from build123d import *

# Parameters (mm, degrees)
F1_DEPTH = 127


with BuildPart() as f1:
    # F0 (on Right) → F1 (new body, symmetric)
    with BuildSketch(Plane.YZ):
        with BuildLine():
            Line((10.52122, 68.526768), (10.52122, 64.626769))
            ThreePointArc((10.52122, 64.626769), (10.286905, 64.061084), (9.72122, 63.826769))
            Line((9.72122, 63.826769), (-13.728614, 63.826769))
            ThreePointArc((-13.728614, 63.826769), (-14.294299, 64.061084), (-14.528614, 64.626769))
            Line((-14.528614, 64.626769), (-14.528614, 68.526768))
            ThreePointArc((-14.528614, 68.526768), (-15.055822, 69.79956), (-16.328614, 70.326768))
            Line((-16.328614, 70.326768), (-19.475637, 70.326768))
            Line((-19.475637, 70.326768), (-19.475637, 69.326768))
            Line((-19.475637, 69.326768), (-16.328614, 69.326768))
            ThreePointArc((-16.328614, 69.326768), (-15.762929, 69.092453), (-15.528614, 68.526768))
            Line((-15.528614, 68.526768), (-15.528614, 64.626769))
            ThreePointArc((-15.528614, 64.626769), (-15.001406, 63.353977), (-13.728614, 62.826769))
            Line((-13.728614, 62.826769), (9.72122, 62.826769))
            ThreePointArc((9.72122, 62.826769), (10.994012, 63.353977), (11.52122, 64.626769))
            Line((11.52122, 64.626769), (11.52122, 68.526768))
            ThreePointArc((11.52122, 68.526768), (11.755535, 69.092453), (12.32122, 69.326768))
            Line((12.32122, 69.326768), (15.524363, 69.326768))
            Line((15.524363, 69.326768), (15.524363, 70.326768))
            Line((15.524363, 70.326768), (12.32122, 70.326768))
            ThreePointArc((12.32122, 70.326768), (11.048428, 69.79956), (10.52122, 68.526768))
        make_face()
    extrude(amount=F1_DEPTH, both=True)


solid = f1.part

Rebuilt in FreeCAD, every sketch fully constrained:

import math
import FreeCAD as App
import Part
import Sketcher
from FreeCAD import Vector
Q = App.Units.Quantity

doc = App.newDocument("Part")
params = doc.addObject("Spreadsheet::Sheet", "Params")
for row, (alias, value) in enumerate([
    ("sketch1_radius", "0.800001 mm"),
    ("sketch1_radius2", "1.800001 mm"),
    ("sketch1_height", "3.899999 mm"),
    ("pad1_length", "254 mm"),
], start=1):
    params.set(f"A{row}", alias)
    params.set(f"B{row}", "=" + value)
    params.setAlias(f"B{row}", alias)

body = doc.addObject("PartDesign::Body", "Body")

sketch1 = body.newObject("Sketcher::SketchObject", "Sketch")
sketch1.AttachmentSupport = (doc.getObject("YZ_Plane"), [""])
sketch1.MapMode = "FlatFace"
sketch1.addGeometry([
    Part.LineSegment(Vector(10.5, 68.5, 0), Vector(10.5, 64.6, 0)),
    Part.ArcOfCircle(Part.Circle(Vector(9.7, 64.6, 0), Vector(0, 0, 1), 0.8), math.radians(-90), math.radians(0)),
    Part.LineSegment(Vector(9.7, 63.8, 0), Vector(-13.7, 63.8, 0)),
    Part.ArcOfCircle(Part.Circle(Vector(-13.7, 64.6, 0), Vector(0, 0, 1), 0.8), math.radians(-180), math.radians(-90)),
    Part.LineSegment(Vector(-14.5, 64.6, 0), Vector(-14.5, 68.5, 0)),
    Part.ArcOfCircle(Part.Circle(Vector(-16.3, 68.5, 0), Vector(0, 0, 1), 1.8), math.radians(0), math.radians(90)),
    Part.LineSegment(Vector(-16.3, 70.3, 0), Vector(-19.5, 70.3, 0)),
    Part.LineSegment(Vector(-19.5, 70.3, 0), Vector(-19.5, 69.3, 0)),
    Part.LineSegment(Vector(-19.5, 69.3, 0), Vector(-16.3, 69.3, 0)),
    Part.ArcOfCircle(Part.Circle(Vector(-16.3, 68.5, 0), Vector(0, 0, 1), 0.8), math.radians(0), math.radians(90)),
    Part.LineSegment(Vector(-15.5, 68.5, 0), Vector(-15.5, 64.6, 0)),
    Part.ArcOfCircle(Part.Circle(Vector(-13.7, 64.6, 0), Vector(0, 0, 1), 1.8), math.radians(-180), math.radians(-90)),
    Part.LineSegment(Vector(-13.7, 62.8, 0), Vector(9.7, 62.8, 0)),
    Part.ArcOfCircle(Part.Circle(Vector(9.7, 64.6, 0), Vector(0, 0, 1), 1.8), math.radians(-90), math.radians(0)),
    Part.LineSegment(Vector(11.5, 64.6, 0), Vector(11.5, 68.5, 0)),
    Part.ArcOfCircle(Part.Circle(Vector(12.3, 68.5, 0), Vector(0, 0, 1), 0.8), math.radians(90), math.radians(180)),
    Part.LineSegment(Vector(12.3, 69.3, 0), Vector(15.5, 69.3, 0)),
    Part.LineSegment(Vector(15.5, 69.3, 0), Vector(15.5, 70.3, 0)),
    Part.LineSegment(Vector(15.5, 70.3, 0), Vector(12.3, 70.3, 0)),
    Part.ArcOfCircle(Part.Circle(Vector(12.3, 68.5, 0), Vector(0, 0, 1), 1.8), math.radians(90), math.radians(180)),
], False)
sketch1.addConstraint([
    Sketcher.Constraint("Tangent", 0, 2, 1, 2),
    Sketcher.Constraint("Tangent", 1, 1, 2, 1),
    Sketcher.Constraint("Tangent", 2, 2, 3, 2),
    Sketcher.Constraint("Tangent", 3, 1, 4, 1),
    Sketcher.Constraint("Tangent", 4, 2, 5, 1),
    Sketcher.Constraint("Tangent", 5, 2, 6, 1),
    Sketcher.Constraint("Coincident", 6, 2, 7, 1),
    Sketcher.Constraint("Coincident", 7, 2, 8, 1),
    Sketcher.Constraint("Tangent", 8, 2, 9, 2),
    Sketcher.Constraint("Tangent", 9, 1, 10, 1),
    Sketcher.Constraint("Tangent", 10, 2, 11, 1),
    Sketcher.Constraint("Tangent", 11, 2, 12, 1),
    Sketcher.Constraint("Tangent", 12, 2, 13, 1),
    Sketcher.Constraint("Tangent", 13, 2, 14, 1),
    Sketcher.Constraint("Tangent", 14, 2, 15, 2),
    Sketcher.Constraint("Tangent", 15, 1, 16, 1),
    Sketcher.Constraint("Coincident", 16, 2, 17, 1),
    Sketcher.Constraint("Coincident", 17, 2, 18, 1),
    Sketcher.Constraint("Tangent", 18, 2, 19, 1),
    Sketcher.Constraint("Tangent", 19, 2, 0, 1),
    Sketcher.Constraint("Vertical", 0),
    Sketcher.Constraint("Horizontal", 2),
    Sketcher.Constraint("Vertical", 4),
    Sketcher.Constraint("Horizontal", 6),
    Sketcher.Constraint("Vertical", 7),
    Sketcher.Constraint("Horizontal", 8),
    Sketcher.Constraint("Vertical", 10),
    Sketcher.Constraint("Horizontal", 12),
    Sketcher.Constraint("Vertical", 14),
    Sketcher.Constraint("Horizontal", 16),
    Sketcher.Constraint("Vertical", 17),
    Sketcher.Constraint("Horizontal", 18),
    Sketcher.Constraint("Coincident", 9, 3, 5, 3),
    Sketcher.Constraint("Coincident", 11, 3, 3, 3),
    Sketcher.Constraint("Coincident", 13, 3, 1, 3),
    Sketcher.Constraint("Coincident", 19, 3, 15, 3),
    Sketcher.Constraint("Equal", 1, 3),
    Sketcher.Constraint("Equal", 3, 9),
    Sketcher.Constraint("Equal", 9, 15),
    Sketcher.Constraint("Horizontal", 9, 3, 15, 3),
    Sketcher.Constraint("Radius", 1, Q("0.800001 mm")),
    Sketcher.Constraint("Radius", 5, Q("1.800001 mm")),
    Sketcher.Constraint("DistanceY", 0, 2, 0, 1, Q("3.899999 mm")),
    Sketcher.Constraint("DistanceX", 2, 2, 2, 1, Q("23.449834 mm")),
    Sketcher.Constraint("DistanceX", 6, 2, 6, 1, Q("3.147023 mm")),
    Sketcher.Constraint("DistanceX", 16, 1, 16, 2, Q("3.203143 mm")),
    Sketcher.Constraint("DistanceX", -1, 1, 1, 3, Q("9.721219 mm")),
    Sketcher.Constraint("DistanceY", -1, 1, 1, 3, Q("64.62677 mm")),
])
sketch1.setExpression("Constraints[40]", "Params.sketch1_radius")
sketch1.setExpression("Constraints[41]", "Params.sketch1_radius2")
sketch1.setExpression("Constraints[42]", "Params.sketch1_height")
pad1 = body.newObject("PartDesign::Pad", "Pad")
pad1.Profile = sketch1
pad1.setExpression("Length", "Params.pad1_length")
pad1.Midplane = True

doc.recompute()
